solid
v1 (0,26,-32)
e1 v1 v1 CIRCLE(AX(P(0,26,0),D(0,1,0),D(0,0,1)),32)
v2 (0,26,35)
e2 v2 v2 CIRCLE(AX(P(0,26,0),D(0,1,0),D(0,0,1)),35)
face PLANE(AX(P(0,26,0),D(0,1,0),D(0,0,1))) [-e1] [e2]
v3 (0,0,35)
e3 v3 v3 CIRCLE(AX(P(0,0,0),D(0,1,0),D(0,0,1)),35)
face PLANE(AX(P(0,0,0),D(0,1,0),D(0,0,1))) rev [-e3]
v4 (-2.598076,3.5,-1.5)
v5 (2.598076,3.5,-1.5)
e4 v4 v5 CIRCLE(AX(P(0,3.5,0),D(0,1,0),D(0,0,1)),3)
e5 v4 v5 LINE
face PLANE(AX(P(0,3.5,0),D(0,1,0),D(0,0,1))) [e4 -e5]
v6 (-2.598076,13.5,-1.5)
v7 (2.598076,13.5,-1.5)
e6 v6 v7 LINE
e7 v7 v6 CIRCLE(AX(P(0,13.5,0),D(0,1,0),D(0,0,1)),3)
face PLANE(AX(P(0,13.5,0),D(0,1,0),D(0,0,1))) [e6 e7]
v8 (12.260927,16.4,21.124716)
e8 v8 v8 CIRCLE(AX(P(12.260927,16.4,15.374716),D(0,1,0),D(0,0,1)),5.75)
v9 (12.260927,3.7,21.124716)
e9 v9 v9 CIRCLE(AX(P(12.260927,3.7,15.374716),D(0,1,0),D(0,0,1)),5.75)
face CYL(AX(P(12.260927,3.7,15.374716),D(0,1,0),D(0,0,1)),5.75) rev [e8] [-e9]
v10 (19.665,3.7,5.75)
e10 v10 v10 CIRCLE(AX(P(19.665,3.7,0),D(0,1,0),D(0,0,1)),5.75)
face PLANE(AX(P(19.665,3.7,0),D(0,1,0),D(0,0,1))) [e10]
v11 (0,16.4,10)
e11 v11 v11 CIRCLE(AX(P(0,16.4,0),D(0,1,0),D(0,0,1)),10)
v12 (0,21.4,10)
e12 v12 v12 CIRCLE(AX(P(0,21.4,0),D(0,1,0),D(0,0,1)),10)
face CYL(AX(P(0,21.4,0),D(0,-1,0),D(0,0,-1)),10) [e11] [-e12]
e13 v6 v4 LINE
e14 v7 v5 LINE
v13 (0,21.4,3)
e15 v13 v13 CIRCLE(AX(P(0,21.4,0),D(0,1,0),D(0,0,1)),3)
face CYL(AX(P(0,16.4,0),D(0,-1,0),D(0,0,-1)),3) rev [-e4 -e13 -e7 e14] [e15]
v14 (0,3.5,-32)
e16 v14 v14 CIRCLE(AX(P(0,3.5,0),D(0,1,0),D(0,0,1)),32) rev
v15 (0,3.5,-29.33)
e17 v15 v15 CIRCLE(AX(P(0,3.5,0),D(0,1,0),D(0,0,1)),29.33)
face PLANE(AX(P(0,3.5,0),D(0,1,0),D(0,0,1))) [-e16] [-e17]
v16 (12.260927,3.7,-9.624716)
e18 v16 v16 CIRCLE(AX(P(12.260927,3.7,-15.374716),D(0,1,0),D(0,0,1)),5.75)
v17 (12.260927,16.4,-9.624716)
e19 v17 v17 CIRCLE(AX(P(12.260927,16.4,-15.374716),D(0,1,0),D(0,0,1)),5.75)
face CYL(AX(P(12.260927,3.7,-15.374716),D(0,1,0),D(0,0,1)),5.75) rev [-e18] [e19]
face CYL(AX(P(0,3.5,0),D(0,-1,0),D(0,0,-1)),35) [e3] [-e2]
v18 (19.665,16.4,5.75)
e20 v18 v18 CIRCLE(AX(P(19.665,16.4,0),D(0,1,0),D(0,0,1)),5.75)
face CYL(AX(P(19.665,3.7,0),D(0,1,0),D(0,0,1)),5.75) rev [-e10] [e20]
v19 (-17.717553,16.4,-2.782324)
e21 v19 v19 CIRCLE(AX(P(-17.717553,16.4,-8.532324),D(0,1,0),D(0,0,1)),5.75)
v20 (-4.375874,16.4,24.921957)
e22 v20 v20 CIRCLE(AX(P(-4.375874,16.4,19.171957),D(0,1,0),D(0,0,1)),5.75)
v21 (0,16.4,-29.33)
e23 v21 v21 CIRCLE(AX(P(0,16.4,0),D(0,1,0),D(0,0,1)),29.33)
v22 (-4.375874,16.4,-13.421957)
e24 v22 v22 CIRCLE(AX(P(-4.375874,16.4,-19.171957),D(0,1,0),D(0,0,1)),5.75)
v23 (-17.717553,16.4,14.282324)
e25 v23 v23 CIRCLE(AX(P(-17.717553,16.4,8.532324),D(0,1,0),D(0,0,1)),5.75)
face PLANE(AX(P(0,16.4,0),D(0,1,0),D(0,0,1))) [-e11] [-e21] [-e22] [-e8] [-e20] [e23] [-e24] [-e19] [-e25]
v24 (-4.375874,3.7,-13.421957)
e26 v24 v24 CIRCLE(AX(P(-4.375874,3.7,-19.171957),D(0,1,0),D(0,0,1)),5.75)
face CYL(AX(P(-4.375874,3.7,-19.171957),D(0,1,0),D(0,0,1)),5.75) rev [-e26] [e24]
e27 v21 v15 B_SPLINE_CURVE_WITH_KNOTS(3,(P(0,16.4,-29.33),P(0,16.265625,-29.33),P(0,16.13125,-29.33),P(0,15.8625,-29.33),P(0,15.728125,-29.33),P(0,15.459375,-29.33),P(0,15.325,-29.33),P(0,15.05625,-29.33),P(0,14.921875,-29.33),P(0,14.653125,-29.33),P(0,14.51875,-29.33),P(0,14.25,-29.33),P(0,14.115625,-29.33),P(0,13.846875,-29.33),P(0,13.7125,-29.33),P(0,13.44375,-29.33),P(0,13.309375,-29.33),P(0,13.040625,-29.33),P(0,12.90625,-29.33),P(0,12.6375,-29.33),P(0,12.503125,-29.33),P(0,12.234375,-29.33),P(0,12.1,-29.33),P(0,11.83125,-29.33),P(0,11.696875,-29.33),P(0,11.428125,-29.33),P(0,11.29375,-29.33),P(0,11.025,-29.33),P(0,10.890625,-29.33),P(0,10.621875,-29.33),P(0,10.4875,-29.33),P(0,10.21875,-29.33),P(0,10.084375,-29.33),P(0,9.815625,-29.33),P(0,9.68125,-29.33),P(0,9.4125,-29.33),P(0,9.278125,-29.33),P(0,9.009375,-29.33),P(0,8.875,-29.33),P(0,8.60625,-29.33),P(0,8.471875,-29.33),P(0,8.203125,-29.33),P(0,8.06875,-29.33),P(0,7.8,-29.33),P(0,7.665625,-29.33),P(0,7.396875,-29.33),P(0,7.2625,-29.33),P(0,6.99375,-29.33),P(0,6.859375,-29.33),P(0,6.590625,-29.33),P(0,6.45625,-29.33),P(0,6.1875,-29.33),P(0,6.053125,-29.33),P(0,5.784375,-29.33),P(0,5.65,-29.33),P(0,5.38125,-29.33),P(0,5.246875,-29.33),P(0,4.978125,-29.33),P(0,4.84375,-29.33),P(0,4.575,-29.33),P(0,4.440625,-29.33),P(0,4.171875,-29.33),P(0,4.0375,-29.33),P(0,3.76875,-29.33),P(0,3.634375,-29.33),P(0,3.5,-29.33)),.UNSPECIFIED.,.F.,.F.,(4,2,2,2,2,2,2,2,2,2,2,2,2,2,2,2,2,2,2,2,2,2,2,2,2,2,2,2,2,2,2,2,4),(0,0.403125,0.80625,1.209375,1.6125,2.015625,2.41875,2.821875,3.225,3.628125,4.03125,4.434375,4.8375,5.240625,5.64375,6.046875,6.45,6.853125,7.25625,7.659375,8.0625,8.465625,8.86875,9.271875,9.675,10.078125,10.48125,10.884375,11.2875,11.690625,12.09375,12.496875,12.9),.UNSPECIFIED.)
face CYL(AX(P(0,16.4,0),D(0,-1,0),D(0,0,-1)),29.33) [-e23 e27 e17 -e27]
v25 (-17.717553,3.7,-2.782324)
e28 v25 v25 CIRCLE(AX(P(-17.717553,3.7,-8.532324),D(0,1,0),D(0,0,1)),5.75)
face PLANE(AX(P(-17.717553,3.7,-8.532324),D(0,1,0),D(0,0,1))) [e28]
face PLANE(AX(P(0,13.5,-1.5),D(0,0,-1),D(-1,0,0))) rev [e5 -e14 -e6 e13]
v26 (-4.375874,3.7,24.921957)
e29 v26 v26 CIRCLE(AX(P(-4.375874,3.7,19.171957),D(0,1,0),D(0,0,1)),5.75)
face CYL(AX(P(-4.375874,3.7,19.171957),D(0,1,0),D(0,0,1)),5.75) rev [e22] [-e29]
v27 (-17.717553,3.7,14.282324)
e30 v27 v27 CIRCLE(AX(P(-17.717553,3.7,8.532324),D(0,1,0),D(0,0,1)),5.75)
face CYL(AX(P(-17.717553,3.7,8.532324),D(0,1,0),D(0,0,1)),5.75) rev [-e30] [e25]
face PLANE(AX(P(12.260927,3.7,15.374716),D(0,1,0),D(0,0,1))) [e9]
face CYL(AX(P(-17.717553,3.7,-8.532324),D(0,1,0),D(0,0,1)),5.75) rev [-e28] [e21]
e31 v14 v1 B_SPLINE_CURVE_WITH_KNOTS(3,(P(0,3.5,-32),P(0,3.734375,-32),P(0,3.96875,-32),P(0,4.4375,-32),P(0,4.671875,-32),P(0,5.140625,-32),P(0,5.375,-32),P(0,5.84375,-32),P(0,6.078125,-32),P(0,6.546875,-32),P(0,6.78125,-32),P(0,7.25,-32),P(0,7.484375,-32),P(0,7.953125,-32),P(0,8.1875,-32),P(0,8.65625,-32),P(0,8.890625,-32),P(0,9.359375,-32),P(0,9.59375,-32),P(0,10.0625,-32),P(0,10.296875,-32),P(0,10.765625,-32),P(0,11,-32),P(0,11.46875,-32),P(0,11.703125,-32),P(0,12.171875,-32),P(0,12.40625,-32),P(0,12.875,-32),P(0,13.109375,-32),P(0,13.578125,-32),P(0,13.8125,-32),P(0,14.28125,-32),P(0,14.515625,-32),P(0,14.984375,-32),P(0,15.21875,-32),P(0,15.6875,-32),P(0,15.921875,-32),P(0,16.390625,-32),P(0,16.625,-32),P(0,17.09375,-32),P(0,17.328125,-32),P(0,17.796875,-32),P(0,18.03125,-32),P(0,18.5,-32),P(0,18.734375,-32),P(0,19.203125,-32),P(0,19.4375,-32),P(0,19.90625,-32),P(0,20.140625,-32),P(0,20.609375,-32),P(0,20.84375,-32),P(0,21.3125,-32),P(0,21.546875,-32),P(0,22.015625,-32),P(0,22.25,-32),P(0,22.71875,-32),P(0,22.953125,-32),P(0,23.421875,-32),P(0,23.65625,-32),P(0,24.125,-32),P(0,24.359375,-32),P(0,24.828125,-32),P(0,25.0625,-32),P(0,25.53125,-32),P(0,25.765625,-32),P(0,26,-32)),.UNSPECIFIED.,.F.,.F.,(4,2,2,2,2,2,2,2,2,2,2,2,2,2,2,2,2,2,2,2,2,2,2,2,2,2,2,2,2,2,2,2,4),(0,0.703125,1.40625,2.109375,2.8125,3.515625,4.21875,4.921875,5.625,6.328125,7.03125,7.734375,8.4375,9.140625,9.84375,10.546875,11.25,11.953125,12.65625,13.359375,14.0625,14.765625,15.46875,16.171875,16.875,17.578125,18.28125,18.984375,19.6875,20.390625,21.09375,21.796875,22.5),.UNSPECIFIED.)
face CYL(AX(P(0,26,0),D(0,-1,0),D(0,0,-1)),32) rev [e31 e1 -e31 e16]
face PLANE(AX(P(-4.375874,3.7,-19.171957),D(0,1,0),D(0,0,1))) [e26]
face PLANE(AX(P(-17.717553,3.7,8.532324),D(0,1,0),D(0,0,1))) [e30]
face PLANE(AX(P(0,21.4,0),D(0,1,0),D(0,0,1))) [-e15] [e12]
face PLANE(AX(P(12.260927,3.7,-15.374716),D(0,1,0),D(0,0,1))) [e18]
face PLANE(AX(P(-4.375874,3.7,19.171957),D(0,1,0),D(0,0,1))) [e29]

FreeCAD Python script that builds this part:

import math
import FreeCAD as App
import Part
import Sketcher
from FreeCAD import Vector

doc = App.newDocument("Part")
body = doc.addObject("PartDesign::Body", "Body")

# Sketch on XZ plane
sketch1 = body.newObject("Sketcher::SketchObject", "Sketch")
sketch1.AttachmentSupport = (doc.getObject("XZ_Plane"), [""])
sketch1.MapMode = "FlatFace"
sketch1.addGeometry(Part.Circle(Vector(0, 0, 0), Vector(0, 0, 1), 35), False)
sketch1.addConstraint([
    Sketcher.Constraint("Coincident", 0, 3, -1, 1),
    Sketcher.Constraint("Diameter", 0, 70.0),
])
pad1 = body.newObject("PartDesign::Pad", "Pad")
pad1.Profile = sketch1
pad1.Length = 3.5
pad1.Reversed = True

# Sketch on XZ plane
sketch2 = body.newObject("Sketcher::SketchObject", "Sketch001")
sketch2.AttachmentSupport = (doc.getObject("XZ_Plane"), [""])
sketch2.MapMode = "FlatFace"
sketch2.addGeometry([
    Part.Circle(Vector(0, 0, 0), Vector(0, 0, 1), 35),
    Part.Circle(Vector(0, 0, 0), Vector(0, 0, 1), 32),
], False)
sketch2.addConstraint([
    Sketcher.Constraint("Coincident", 0, 3, -1, 1),
    Sketcher.Constraint("Coincident", 1, 3, -1, 1),
    Sketcher.Constraint("Diameter", 0, 70.0),
    Sketcher.Constraint("Diameter", 1, 64.0),
])
pad2 = body.newObject("PartDesign::Pad", "Pad001")
pad2.Profile = sketch2
pad2.Length = 26
pad2.Reversed = True

# Sketch on XZ plane
sketch3 = body.newObject("Sketcher::SketchObject", "Sketch002")
sketch3.AttachmentSupport = (doc.getObject("XZ_Plane"), [""])
sketch3.MapMode = "FlatFace"
sketch3.AttachmentOffset = App.Placement(Vector(0, 0, -3.5), App.Rotation())
sketch3.addGeometry([
    Part.LineSegment(Vector(-2.6, -1.5, 0), Vector(2.6, -1.5, 0)),
    Part.ArcOfCircle(Part.Circle(Vector(0, 0, 0), Vector(0, 0, 1), 3), math.radians(-150), math.radians(-30)),
], False)
sketch3.addConstraint([
    Sketcher.Constraint("Coincident", 0, 1, 1, 1),
    Sketcher.Constraint("Coincident", 1, 2, 0, 2),
    Sketcher.Constraint("Horizontal", 0),
    Sketcher.Constraint("Coincident", 1, 3, -1, 1),
    Sketcher.Constraint("Radius", 1, 3.0),
    Sketcher.Constraint("DistanceY", 0, 1, -1, 1, 1.5),
])
pad3 = body.newObject("PartDesign::Pad", "Pad002")
pad3.Profile = sketch3
pad3.Length = 10
pad3.Reversed = True

# Sketch on XZ plane
sketch4 = body.newObject("Sketcher::SketchObject", "Sketch003")
sketch4.AttachmentSupport = (doc.getObject("XZ_Plane"), [""])
sketch4.MapMode = "FlatFace"
sketch4.AttachmentOffset = App.Placement(Vector(0, 0, -3.5), App.Rotation())
sketch4.addGeometry([
    Part.Circle(Vector(0, 0, 0), Vector(0, 0, 1), 29.3),
    Part.Circle(Vector(0, 0, 0), Vector(0, 0, 1), 3),
], False)
sketch4.addConstraint([
    Sketcher.Constraint("Coincident", 0, 3, -1, 1),
    Sketcher.Constraint("Coincident", 1, 3, -1, 1),
    Sketcher.Constraint("Diameter", 1, 6.0),
    Sketcher.Constraint("Diameter", 0, 58.66),
])
pad4 = body.newObject("PartDesign::Pad", "Pad003")
pad4.Profile = sketch4
pad4.Length = 12.9
pad4.Reversed = True

# Sketch on XZ plane
sketch5 = body.newObject("Sketcher::SketchObject", "Sketch004")
sketch5.AttachmentSupport = (doc.getObject("XZ_Plane"), [""])
sketch5.MapMode = "FlatFace"
sketch5.AttachmentOffset = App.Placement(Vector(0, 0, -16.4), App.Rotation())
sketch5.addGeometry([
    Part.Circle(Vector(0, 0, 0), Vector(0, 0, 1), 10),
    Part.Circle(Vector(0, 0, 0), Vector(0, 0, 1), 3),
], False)
sketch5.addConstraint([
    Sketcher.Constraint("Coincident", 0, 3, -1, 1),
    Sketcher.Constraint("Coincident", 1, 3, -1, 1),
    Sketcher.Constraint("Diameter", 0, 20.0),
    Sketcher.Constraint("Diameter", 1, 6.0),
])
pad5 = body.newObject("PartDesign::Pad", "Pad004")
pad5.Profile = sketch5
pad5.Length = 5
pad5.Reversed = True

# Sketch on XZ plane
sketch6 = body.newObject("Sketcher::SketchObject", "Sketch005")
sketch6.AttachmentSupport = (doc.getObject("XZ_Plane"), [""])
sketch6.MapMode = "FlatFace"
sketch6.AttachmentOffset = App.Placement(Vector(0, 0, -16.4), App.Rotation())
sketch6.addGeometry([
    Part.Circle(Vector(20, 0, 0), Vector(0, 0, 1), 6),  # 0
    Part.Circle(Vector(12, 15, 0), Vector(0, 0, 1), 6),  # 1
    Part.Circle(Vector(-4, 19, 0), Vector(0, 0, 1), 6),  # 2
    Part.Circle(Vector(-18, 9, 0), Vector(0, 0, 1), 6),  # 3
    Part.Circle(Vector(-18, -9, 0), Vector(0, 0, 1), 6),  # 4
    Part.Circle(Vector(-4, -19, 0), Vector(0, 0, 1), 6),  # 5
    Part.Circle(Vector(12, -15, 0), Vector(0, 0, 1), 6),  # 6
], False)
sketch6.addConstraint([
    Sketcher.Constraint("Equal", 0, 1),
    Sketcher.Constraint("Equal", 1, 2),
    Sketcher.Constraint("Equal", 2, 3),
    Sketcher.Constraint("Equal", 3, 4),
    Sketcher.Constraint("Equal", 4, 5),
    Sketcher.Constraint("Equal", 5, 6),
    Sketcher.Constraint("Symmetric", 3, 3, 4, 3, -1),
    Sketcher.Constraint("Symmetric", 2, 3, 5, 3, -1),
    Sketcher.Constraint("Symmetric", 1, 3, 6, 3, -1),
    Sketcher.Constraint("PointOnObject", 0, 3, -1),
    Sketcher.Constraint("Diameter", 0, 11.5),
    Sketcher.Constraint("DistanceX", -1, 1, 0, 3, 19.665),
    Sketcher.Constraint("DistanceX", 2, 3, 1, 3, 16.636801),
    Sketcher.Constraint("DistanceY", 1, 3, 2, 3, 3.797241),
    Sketcher.Constraint("DistanceX", 3, 3, 2, 3, 13.341679),
    Sketcher.Constraint("DistanceY", 4, 3, 2, 3, 27.704281),
    Sketcher.Constraint("DistanceX", -1, 1, 1, 3, 12.260927),
    Sketcher.Constraint("DistanceY", -1, 1, 1, 3, 15.374716),
])
pocket1 = body.newObject("PartDesign::Pocket", "Pocket")
pocket1.Profile = sketch6
pocket1.Length = 12.7
pocket1.Reversed = True

doc.recompute()
